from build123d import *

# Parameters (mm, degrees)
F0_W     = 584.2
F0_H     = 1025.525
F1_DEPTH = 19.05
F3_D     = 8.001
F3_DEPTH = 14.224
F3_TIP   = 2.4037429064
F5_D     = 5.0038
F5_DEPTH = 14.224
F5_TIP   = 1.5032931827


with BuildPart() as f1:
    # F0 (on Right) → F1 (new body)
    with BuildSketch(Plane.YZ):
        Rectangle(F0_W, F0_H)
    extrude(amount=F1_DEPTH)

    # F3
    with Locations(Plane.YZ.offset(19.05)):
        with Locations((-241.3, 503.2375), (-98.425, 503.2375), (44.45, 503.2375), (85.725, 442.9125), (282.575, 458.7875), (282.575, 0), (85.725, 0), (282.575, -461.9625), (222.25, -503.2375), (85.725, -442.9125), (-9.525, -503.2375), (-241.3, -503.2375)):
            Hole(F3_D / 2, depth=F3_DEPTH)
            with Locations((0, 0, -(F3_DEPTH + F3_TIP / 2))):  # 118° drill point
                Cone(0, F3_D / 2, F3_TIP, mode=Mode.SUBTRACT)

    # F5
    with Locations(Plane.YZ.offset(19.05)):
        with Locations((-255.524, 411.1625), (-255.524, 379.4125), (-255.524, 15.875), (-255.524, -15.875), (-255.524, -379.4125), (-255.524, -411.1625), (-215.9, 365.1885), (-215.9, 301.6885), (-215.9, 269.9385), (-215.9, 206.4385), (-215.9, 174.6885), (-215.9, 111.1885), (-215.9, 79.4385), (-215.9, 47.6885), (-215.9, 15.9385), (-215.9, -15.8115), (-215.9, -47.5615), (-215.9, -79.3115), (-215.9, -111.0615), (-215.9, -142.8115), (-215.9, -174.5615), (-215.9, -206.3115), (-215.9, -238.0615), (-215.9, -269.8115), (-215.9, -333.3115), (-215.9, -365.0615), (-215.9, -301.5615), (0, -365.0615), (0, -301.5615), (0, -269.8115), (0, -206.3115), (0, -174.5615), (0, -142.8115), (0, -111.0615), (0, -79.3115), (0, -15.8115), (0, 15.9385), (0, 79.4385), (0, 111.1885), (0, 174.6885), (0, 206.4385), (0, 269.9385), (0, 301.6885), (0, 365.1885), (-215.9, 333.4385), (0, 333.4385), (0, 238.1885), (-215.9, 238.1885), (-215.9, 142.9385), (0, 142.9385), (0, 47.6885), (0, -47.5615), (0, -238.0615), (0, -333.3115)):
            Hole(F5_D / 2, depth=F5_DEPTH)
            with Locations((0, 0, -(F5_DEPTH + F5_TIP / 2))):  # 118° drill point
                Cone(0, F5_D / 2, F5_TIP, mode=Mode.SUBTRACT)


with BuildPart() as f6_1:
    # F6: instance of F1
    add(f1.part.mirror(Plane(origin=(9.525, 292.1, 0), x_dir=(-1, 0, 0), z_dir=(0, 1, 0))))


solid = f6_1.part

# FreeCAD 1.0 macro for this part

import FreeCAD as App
import Part
import Sketcher
Q = App.Units.Quantity

doc = App.newDocument("Part")
body = doc.addObject("PartDesign::Body", "Body")

# Sketch on YZ plane
sketch1 = doc.addObject("Sketcher::SketchObject", "Sketch")
body.addObject(sketch1)
sketch1.AttachmentSupport = (doc.YZ_Plane, [""])
sketch1.MapMode = "FlatFace"
sketch1.addGeometry([
    Part.LineSegment(App.Vector(-292, 513, 0), App.Vector(-292, -513, 0)),
    Part.LineSegment(App.Vector(-292, -513, 0), App.Vector(292, -513, 0)),
    Part.LineSegment(App.Vector(292, -513, 0), App.Vector(292, 513, 0)),
    Part.LineSegment(App.Vector(292, 513, 0), App.Vector(-292, 513, 0)),
], False)
sketch1.addConstraint([
    Sketcher.Constraint("Coincident", 0, 2, 1, 1),
    Sketcher.Constraint("Coincident", 1, 2, 2, 1),
    Sketcher.Constraint("Coincident", 2, 2, 3, 1),
    Sketcher.Constraint("Coincident", 3, 2, 0, 1),
    Sketcher.Constraint("Vertical", 0),
    Sketcher.Constraint("Horizontal", 1),
    Sketcher.Constraint("Vertical", 2),
    Sketcher.Constraint("Horizontal", 3),
    Sketcher.Constraint("Symmetric", 0, 2, 2, 2, -1, 1),
    Sketcher.Constraint("DistanceX", 1, 1, 1, 2, Q("23 in")),
    Sketcher.Constraint("DistanceY", 0, 2, 0, 1, Q("40.375 in")),
])
pad1 = doc.addObject("PartDesign::Pad", "Pad")
body.addObject(pad1)
pad1.Profile = sketch1
pad1.Length = Q("0.75 in")

# Sketch on YZ plane
sketch2 = doc.addObject("Sketcher::SketchObject", "Sketch001")
body.addObject(sketch2)
sketch2.AttachmentSupport = (doc.YZ_Plane, [""])
sketch2.MapMode = "FlatFace"
sketch2.AttachmentOffset = App.Placement(App.Vector(0, 0, 0.75 * 25.4), App.Rotation())
sketch2.addGeometry([
    Part.Circle(App.Vector(-241.3, 503.2, 0), App.Vector(0, 0, 1), 4),  # 0
    Part.Circle(App.Vector(-98.4, 503.2, 0), App.Vector(0, 0, 1), 4),  # 1
    Part.Circle(App.Vector(44.5, 503.2, 0), App.Vector(0, 0, 1), 4),  # 2
    Part.Circle(App.Vector(85.7, 442.9, 0), App.Vector(0, 0, 1), 4),  # 3
    Part.Circle(App.Vector(282.6, 458.8, 0), App.Vector(0, 0, 1), 4),  # 4
    Part.Circle(App.Vector(282.6, 0, 0), App.Vector(0, 0, 1), 4),  # 5
    Part.Circle(App.Vector(85.7, 0, 0), App.Vector(0, 0, 1), 4),  # 6
    Part.Circle(App.Vector(282.6, -462, 0), App.Vector(0, 0, 1), 4),  # 7
    Part.Circle(App.Vector(222.2, -503.2, 0), App.Vector(0, 0, 1), 4),  # 8
    Part.Circle(App.Vector(85.7, -442.9, 0), App.Vector(0, 0, 1), 4),  # 9
    Part.Circle(App.Vector(-9.5, -503.2, 0), App.Vector(0, 0, 1), 4),  # 10
    Part.Circle(App.Vector(-241.3, -503.2, 0), App.Vector(0, 0, 1), 4),  # 11
], False)
sketch2.addConstraint([
    Sketcher.Constraint("Equal", 0, 1),
    Sketcher.Constraint("Equal", 1, 2),
    Sketcher.Constraint("Equal", 2, 3),
    Sketcher.Constraint("Equal", 3, 4),
    Sketcher.Constraint("Equal", 4, 5),
    Sketcher.Constraint("Equal", 5, 6),
    Sketcher.Constraint("Equal", 6, 7),
    Sketcher.Constraint("Equal", 7, 8),
    Sketcher.Constraint("Equal", 8, 9),
    Sketcher.Constraint("Equal", 9, 10),
    Sketcher.Constraint("Equal", 10, 11),
    Sketcher.Constraint("Symmetric", 3, 3, 9, 3, -1),
    Sketcher.Constraint("Symmetric", 0, 3, 11, 3, -1),
    Sketcher.Constraint("PointOnObject", 5, 3, -1),
    Sketcher.Constraint("PointOnObject", 6, 3, -1),
    Sketcher.Constraint("Horizontal", 0, 3, 1, 3),
    Sketcher.Constraint("Horizontal", 1, 3, 2, 3),
    Sketcher.Constraint("Horizontal", 8, 3, 10, 3),
    Sketcher.Constraint("Horizontal", 10, 3, 11, 3),
    Sketcher.Constraint("Vertical", 4, 3, 5, 3),
    Sketcher.Constraint("Vertical", 3, 3, 6, 3),
    Sketcher.Constraint("Vertical", 5, 3, 7, 3),
    Sketcher.Constraint("Diameter", 0, Q("0.315 in")),
    Sketcher.Constraint("DistanceX", 1, 3, 4, 3, Q("15 in")),
    Sketcher.Constraint("DistanceY", 7, 3, 2, 3, Q("38 in")),
    Sketcher.Constraint("DistanceX", 0, 3, -1, 1, Q("9.5 in")),
    Sketcher.Constraint("DistanceX", 10, 3, 7, 3, Q("11.5 in")),
    Sketcher.Constraint("DistanceX", -1, 1, 2, 3, Q("1.75 in")),
    Sketcher.Constraint("DistanceX", -1, 1, 8, 3, Q("8.75 in")),
    Sketcher.Constraint("DistanceX", 1, 3, 3, 3, Q("7.25 in")),
    Sketcher.Constraint("DistanceY", 4, 3, 2, 3, Q("1.75 in")),
    Sketcher.Constraint("DistanceY", 8, 3, 3, 3, Q("37.25 in")),
    Sketcher.Constraint("DistanceY", -1, 1, 0, 3, Q("19.8125 in")),
    Sketcher.Constraint("DistanceX", 1, 3, -1, 1, Q("3.875 in")),
])
doc.recompute()
hole = doc.addObject("PartDesign::Hole", "Hole")
body.addObject(hole)
hole.Profile = sketch2
hole.ThreadType = "None"
hole.Diameter = Q("0.315 in")
hole.DepthType = "Dimension"
hole.Depth = Q("0.56 in")
hole.DrillPoint = "Angled"
hole.DrillPointAngle = 118

# Sketch on YZ plane
sketch3 = doc.addObject("Sketcher::SketchObject", "Sketch002")
body.addObject(sketch3)
sketch3.AttachmentSupport = (doc.YZ_Plane, [""])
sketch3.MapMode = "FlatFace"
sketch3.AttachmentOffset = App.Placement(App.Vector(0, 0, 0.75 * 25.4), App.Rotation())
sketch3.addGeometry([
    Part.Circle(App.Vector(-255.5, 411.2, 0), App.Vector(0, 0, 1), 2.5),  # 0
    Part.Circle(App.Vector(-255.5, 379.4, 0), App.Vector(0, 0, 1), 2.5),  # 1
    Part.Circle(App.Vector(-255.5, 15.9, 0), App.Vector(0, 0, 1), 2.5),  # 2
    Part.Circle(App.Vector(-255.5, -15.9, 0), App.Vector(0, 0, 1), 2.5),  # 3
    Part.Circle(App.Vector(-255.5, -379.4, 0), App.Vector(0, 0, 1), 2.5),  # 4
    Part.Circle(App.Vector(-255.5, -411.2, 0), App.Vector(0, 0, 1), 2.5),  # 5
    Part.Circle(App.Vector(-215.9, 365.2, 0), App.Vector(0, 0, 1), 2.5),  # 6
    Part.Circle(App.Vector(-215.9, 301.7, 0), App.Vector(0, 0, 1), 2.5),  # 7
    Part.Circle(App.Vector(-215.9, 269.9, 0), App.Vector(0, 0, 1), 2.5),  # 8
    Part.Circle(App.Vector(-215.9, 206.4, 0), App.Vector(0, 0, 1), 2.5),  # 9
    Part.Circle(App.Vector(-215.9, 174.7, 0), App.Vector(0, 0, 1), 2.5),  # 10
    Part.Circle(App.Vector(-215.9, 111.2, 0), App.Vector(0, 0, 1), 2.5),  # 11
    Part.Circle(App.Vector(-215.9, 79.4, 0), App.Vector(0, 0, 1), 2.5),  # 12
    Part.Circle(App.Vector(-215.9, 47.7, 0), App.Vector(0, 0, 1), 2.5),  # 13
    Part.Circle(App.Vector(-215.9, 15.9, 0), App.Vector(0, 0, 1), 2.5),  # 14
    Part.Circle(App.Vector(-215.9, -15.8, 0), App.Vector(0, 0, 1), 2.5),  # 15
    Part.Circle(App.Vector(-215.9, -47.6, 0), App.Vector(0, 0, 1), 2.5),  # 16
    Part.Circle(App.Vector(-215.9, -79.3, 0), App.Vector(0, 0, 1), 2.5),  # 17
    Part.Circle(App.Vector(-215.9, -111.1, 0), App.Vector(0, 0, 1), 2.5),  # 18
    Part.Circle(App.Vector(-215.9, -142.8, 0), App.Vector(0, 0, 1), 2.5),  # 19
    Part.Circle(App.Vector(-215.9, -174.6, 0), App.Vector(0, 0, 1), 2.5),  # 20
    Part.Circle(App.Vector(-215.9, -206.3, 0), App.Vector(0, 0, 1), 2.5),  # 21
    Part.Circle(App.Vector(-215.9, -238.1, 0), App.Vector(0, 0, 1), 2.5),  # 22
    Part.Circle(App.Vector(-215.9, -269.8, 0), App.Vector(0, 0, 1), 2.5),  # 23
    Part.Circle(App.Vector(-215.9, -333.3, 0), App.Vector(0, 0, 1), 2.5),  # 24
    Part.Circle(App.Vector(-215.9, -365.1, 0), App.Vector(0, 0, 1), 2.5),  # 25
    Part.Circle(App.Vector(-215.9, -301.6, 0), App.Vector(0, 0, 1), 2.5),  # 26
    Part.Circle(App.Vector(0, -365.1, 0), App.Vector(0, 0, 1), 2.5),  # 27
    Part.Circle(App.Vector(0, -301.6, 0), App.Vector(0, 0, 1), 2.5),  # 28
    Part.Circle(App.Vector(0, -269.8, 0), App.Vector(0, 0, 1), 2.5),  # 29
    Part.Circle(App.Vector(0, -206.3, 0), App.Vector(0, 0, 1), 2.5),  # 30
    Part.Circle(App.Vector(0, -174.6, 0), App.Vector(0, 0, 1), 2.5),  # 31
    Part.Circle(App.Vector(0, -142.8, 0), App.Vector(0, 0, 1), 2.5),  # 32
    Part.Circle(App.Vector(0, -111.1, 0), App.Vector(0, 0, 1), 2.5),  # 33
    Part.Circle(App.Vector(0, -79.3, 0), App.Vector(0, 0, 1), 2.5),  # 34
    Part.Circle(App.Vector(0, -15.8, 0), App.Vector(0, 0, 1), 2.5),  # 35
    Part.Circle(App.Vector(0, 15.9, 0), App.Vector(0, 0, 1), 2.5),  # 36
    Part.Circle(App.Vector(0, 79.4, 0), App.Vector(0, 0, 1), 2.5),  # 37
    Part.Circle(App.Vector(0, 111.2, 0), App.Vector(0, 0, 1), 2.5),  # 38
    Part.Circle(App.Vector(0, 174.7, 0), App.Vector(0, 0, 1), 2.5),  # 39
    Part.Circle(App.Vector(0, 206.4, 0), App.Vector(0, 0, 1), 2.5),  # 40
    Part.Circle(App.Vector(0, 269.9, 0), App.Vector(0, 0, 1), 2.5),  # 41
    Part.Circle(App.Vector(0, 301.7, 0), App.Vector(0, 0, 1), 2.5),  # 42
    Part.Circle(App.Vector(0, 365.2, 0), App.Vector(0, 0, 1), 2.5),  # 43
    Part.Circle(App.Vector(-215.9, 333.4, 0), App.Vector(0, 0, 1), 2.5),  # 44
    Part.Circle(App.Vector(0, 333.4, 0), App.Vector(0, 0, 1), 2.5),  # 45
    Part.Circle(App.Vector(0, 238.2, 0), App.Vector(0, 0, 1), 2.5),  # 46
    Part.Circle(App.Vector(-215.9, 238.2, 0), App.Vector(0, 0, 1), 2.5),  # 47
    Part.Circle(App.Vector(-215.9, 142.9, 0), App.Vector(0, 0, 1), 2.5),  # 48
    Part.Circle(App.Vector(0, 142.9, 0), App.Vector(0, 0, 1), 2.5),  # 49
    Part.Circle(App.Vector(0, 47.7, 0), App.Vector(0, 0, 1), 2.5),  # 50
    Part.Circle(App.Vector(0, -47.6, 0), App.Vector(0, 0, 1), 2.5),  # 51
    Part.Circle(App.Vector(0, -238.1, 0), App.Vector(0, 0, 1), 2.5),  # 52
    Part.Circle(App.Vector(0, -333.3, 0), App.Vector(0, 0, 1), 2.5),  # 53
], False)
sketch3.addConstraint([
    Sketcher.Constraint("Equal", 0, 1),
    Sketcher.Constraint("Equal", 1, 2),
    Sketcher.Constraint("Equal", 2, 3),
    Sketcher.Constraint("Equal", 3, 4),
    Sketcher.Constraint("Equal", 4, 5),
    Sketcher.Constraint("Equal", 5, 6),
    Sketcher.Constraint("Equal", 6, 7),
    Sketcher.Constraint("Equal", 7, 8),
    Sketcher.Constraint("Equal", 8, 9),
    Sketcher.Constraint("Equal", 9, 10),
    Sketcher.Constraint("Equal", 10, 11),
    Sketcher.Constraint("Equal", 11, 12),
    Sketcher.Constraint("Equal", 12, 13),
    Sketcher.Constraint("Equal", 13, 14),
    Sketcher.Constraint("Equal", 14, 15),
    Sketcher.Constraint("Equal", 15, 16),
    Sketcher.Constraint("Equal", 16, 17),
    Sketcher.Constraint("Equal", 17, 18),
    Sketcher.Constraint("Equal", 18, 19),
    Sketcher.Constraint("Equal", 19, 20),
    Sketcher.Constraint("Equal", 20, 21),
    Sketcher.Constraint("Equal", 21, 22),
    Sketcher.Constraint("Equal", 22, 23),
    Sketcher.Constraint("Equal", 23, 24),
    Sketcher.Constraint("Equal", 24, 25),
    Sketcher.Constraint("Equal", 25, 26),
    Sketcher.Constraint("Equal", 26, 27),
    Sketcher.Constraint("Equal", 27, 28),
    Sketcher.Constraint("Equal", 28, 29),
    Sketcher.Constraint("Equal", 29, 30),
    Sketcher.Constraint("Equal", 30, 31),
    Sketcher.Constraint("Equal", 31, 32),
    Sketcher.Constraint("Equal", 32, 33),
    Sketcher.Constraint("Equal", 33, 34),
    Sketcher.Constraint("Equal", 34, 35),
    Sketcher.Constraint("Equal", 35, 36),
    Sketcher.Constraint("Equal", 36, 37),
    Sketcher.Constraint("Equal", 37, 38),
    Sketcher.Constraint("Equal", 38, 39),
    Sketcher.Constraint("Equal", 39, 40),
    Sketcher.Constraint("Equal", 40, 41),
    Sketcher.Constraint("Equal", 41, 42),
    Sketcher.Constraint("Equal", 42, 43),
    Sketcher.Constraint("Equal", 43, 44),
    Sketcher.Constraint("Equal", 44, 45),
    Sketcher.Constraint("Equal", 45, 46),
    Sketcher.Constraint("Equal", 46, 47),
    Sketcher.Constraint("Equal", 47, 48),
    Sketcher.Constraint("Equal", 48, 49),
    Sketcher.Constraint("Equal", 49, 50),
    Sketcher.Constraint("Equal", 50, 51),
    Sketcher.Constraint("Equal", 51, 52),
    Sketcher.Constraint("Equal", 52, 53),
    Sketcher.Constraint("Symmetric", 2, 3, 3, 3, -1),
    Sketcher.Constraint("Symmetric", 1, 3, 4, 3, -1),
    Sketcher.Constraint("Symmetric", 0, 3, 5, 3, -1),
    Sketcher.Constraint("PointOnObject", 27, 3, -2),
    Sketcher.Constraint("PointOnObject", 28, 3, -2),
    Sketcher.Constraint("PointOnObject", 29, 3, -2),
    Sketcher.Constraint("PointOnObject", 30, 3, -2),
    Sketcher.Constraint("PointOnObject", 31, 3, -2),
    Sketcher.Constraint("PointOnObject", 32, 3, -2),
    Sketcher.Constraint("PointOnObject", 33, 3, -2),
    Sketcher.Constraint("PointOnObject", 34, 3, -2),
    Sketcher.Constraint("PointOnObject", 35, 3, -2),
    Sketcher.Constraint("PointOnObject", 36, 3, -2),
    Sketcher.Constraint("PointOnObject", 37, 3, -2),
    Sketcher.Constraint("PointOnObject", 38, 3, -2),
    Sketcher.Constraint("PointOnObject", 39, 3, -2),
    Sketcher.Constraint("PointOnObject", 40, 3, -2),
    Sketcher.Constraint("PointOnObject", 41, 3, -2),
    Sketcher.Constraint("PointOnObject", 42, 3, -2),
    Sketcher.Constraint("PointOnObject", 43, 3, -2),
    Sketcher.Constraint("PointOnObject", 45, 3, -2),
    Sketcher.Constraint("PointOnObject", 46, 3, -2),
    Sketcher.Constraint("PointOnObject", 49, 3, -2),
    Sketcher.Constraint("PointOnObject", 50, 3, -2),
    Sketcher.Constraint("PointOnObject", 51, 3, -2),
    Sketcher.Constraint("PointOnObject", 52, 3, -2),
    Sketcher.Constraint("PointOnObject", 53, 3, -2),
    Sketcher.Constraint("Horizontal", 25, 3, 27, 3),
    Sketcher.Constraint("Horizontal", 26, 3, 28, 3),
    Sketcher.Constraint("Horizontal", 23, 3, 29, 3),
    Sketcher.Constraint("Horizontal", 21, 3, 30, 3),
    Sketcher.Constraint("Horizontal", 20, 3, 31, 3),
    Sketcher.Constraint("Horizontal", 19, 3, 32, 3),
    Sketcher.Constraint("Horizontal", 18, 3, 33, 3),
    Sketcher.Constraint("Horizontal", 17, 3, 34, 3),
    Sketcher.Constraint("Horizontal", 15, 3, 35, 3),
    Sketcher.Constraint("Horizontal", 14, 3, 36, 3),
    Sketcher.Constraint("Horizontal", 12, 3, 37, 3),
    Sketcher.Constraint("Horizontal", 11, 3, 38, 3),
    Sketcher.Constraint("Horizontal", 10, 3, 39, 3),
    Sketcher.Constraint("Horizontal", 9, 3, 40, 3),
    Sketcher.Constraint("Horizontal", 8, 3, 41, 3),
    Sketcher.Constraint("Horizontal", 7, 3, 42, 3),
    Sketcher.Constraint("Horizontal", 6, 3, 43, 3),
    Sketcher.Constraint("Horizontal", 44, 3, 45, 3),
    Sketcher.Constraint("Horizontal", 46, 3, 47, 3),
    Sketcher.Constraint("Horizontal", 48, 3, 49, 3),
    Sketcher.Constraint("Horizontal", 13, 3, 50, 3),
    Sketcher.Constraint("Horizontal", 16, 3, 51, 3),
    Sketcher.Constraint("Horizontal", 22, 3, 52, 3),
    Sketcher.Constraint("Horizontal", 24, 3, 53, 3),
    Sketcher.Constraint("Vertical", 0, 3, 1, 3),
    Sketcher.Constraint("Vertical", 1, 3, 2, 3),
    Sketcher.Constraint("Vertical", 6, 3, 7, 3),
    Sketcher.Constraint("Vertical", 7, 3, 8, 3),
    Sketcher.Constraint("Vertical", 8, 3, 9, 3),
    Sketcher.Constraint("Vertical", 9, 3, 10, 3),
    Sketcher.Constraint("Vertical", 10, 3, 11, 3),
    Sketcher.Constraint("Vertical", 11, 3, 12, 3),
    Sketcher.Constraint("Vertical", 12, 3, 13, 3),
    Sketcher.Constraint("Vertical", 13, 3, 14, 3),
    Sketcher.Constraint("Vertical", 14, 3, 15, 3),
    Sketcher.Constraint("Vertical", 15, 3, 16, 3),
    Sketcher.Constraint("Vertical", 16, 3, 17, 3),
    Sketcher.Constraint("Vertical", 17, 3, 18, 3),
    Sketcher.Constraint("Vertical", 18, 3, 19, 3),
    Sketcher.Constraint("Vertical", 19, 3, 20, 3),
    Sketcher.Constraint("Vertical", 20, 3, 21, 3),
    Sketcher.Constraint("Vertical", 21, 3, 22, 3),
    Sketcher.Constraint("Vertical", 22, 3, 23, 3),
    Sketcher.Constraint("Vertical", 23, 3, 24, 3),
    Sketcher.Constraint("Vertical", 24, 3, 25, 3),
    Sketcher.Constraint("Vertical", 25, 3, 26, 3),
    Sketcher.Constraint("Vertical", 26, 3, 44, 3),
    Sketcher.Constraint("Vertical", 44, 3, 47, 3),
    Sketcher.Constraint("Vertical", 47, 3, 48, 3),
    Sketcher.Constraint("Diameter", 0, Q("0.197 in")),
    Sketcher.Constraint("DistanceY", 10, 3, 7, 3, Q("5 in")),
    Sketcher.Constraint("DistanceY", 12, 3, 9, 3, Q("5 in")),
    Sketcher.Constraint("DistanceY", 13, 3, 10, 3, Q("5 in")),
    Sketcher.Constraint("DistanceY", 18, 3, 14, 3, Q("5 in")),
    Sketcher.Constraint("DistanceY", 19, 3, 15, 3, Q("5 in")),
    Sketcher.Constraint("DistanceY", 20, 3, 16, 3, Q("5 in")),
    Sketcher.Constraint("DistanceY", 21, 3, 17, 3, Q("5 in")),
    Sketcher.Constraint("DistanceY", 22, 3, 18, 3, Q("5 in")),
    Sketcher.Constraint("DistanceY", 23, 3, 19, 3, Q("5 in")),
    Sketcher.Constraint("DistanceY", 24, 3, 21, 3, Q("5 in")),
    Sketcher.Constraint("DistanceY", 25, 3, 22, 3, Q("5 in")),
    Sketcher.Constraint("DistanceY", 28, 3, 31, 3, Q("5 in")),
    Sketcher.Constraint("DistanceY", 35, 3, 38, 3, Q("5 in")),
    Sketcher.Constraint("DistanceY", 40, 3, 45, 3, Q("5 in")),
    Sketcher.Constraint("DistanceX", 6, 3, -1, 1, Q("8.5 in")),
    Sketcher.Constraint("DistanceY", 7, 3, 6, 3, Q("2.5 in")),
    Sketcher.Constraint("DistanceY", 9, 3, 8, 3, Q("2.5 in")),
    Sketcher.Constraint("DistanceY", 11, 3, 10, 3, Q("2.5 in")),
    Sketcher.Constraint("DistanceY", 14, 3, 12, 3, Q("2.5 in")),
    Sketcher.Constraint("DistanceY", 16, 3, 14, 3, Q("2.5 in")),
    Sketcher.Constraint("DistanceY", 17, 3, 15, 3, Q("2.5 in")),
    Sketcher.Constraint("DistanceY", 46, 3, 42, 3, Q("2.5 in")),
    Sketcher.Constraint("DistanceY", 48, 3, 9, 3, Q("2.5 in")),
    Sketcher.Constraint("DistanceX", 0, 3, -1, 1, Q("10.06 in")),
    Sketcher.Constraint("DistanceY", 1, 3, 0, 3, Q("1.25 in")),
    Sketcher.Constraint("DistanceY", 3, 3, 2, 3, Q("1.25 in")),
    Sketcher.Constraint("DistanceY", 6, 3, 1, 3, Q("0.56 in")),
    Sketcher.Constraint("DistanceY", 8, 3, 7, 3, Q("1.25 in")),
    Sketcher.Constraint("DistanceY", -1, 1, 0, 3, Q("16.1875 in")),
])
doc.recompute()
hole2 = doc.addObject("PartDesign::Hole", "Hole001")
body.addObject(hole2)
hole2.Profile = sketch3
hole2.ThreadType = "None"
hole2.Diameter = Q("0.197 in")
hole2.DepthType = "Dimension"
hole2.Depth = Q("0.56 in")
hole2.DrillPoint = "Angled"
hole2.DrillPointAngle = 118
body2 = doc.addObject("PartDesign::Body", "Body001")
doc.recompute()

mirroring = doc.addObject("Part::Mirroring", "Mirroring")
mirroring.Source = body
mirroring.Base = App.Vector(9.525, 292.1, 0)
mirroring.Normal = App.Vector(0, 1, 0)
body2.BaseFeature = mirroring
doc.recompute()
body.Visibility = False
mirroring.Visibility = False

doc.recompute()
